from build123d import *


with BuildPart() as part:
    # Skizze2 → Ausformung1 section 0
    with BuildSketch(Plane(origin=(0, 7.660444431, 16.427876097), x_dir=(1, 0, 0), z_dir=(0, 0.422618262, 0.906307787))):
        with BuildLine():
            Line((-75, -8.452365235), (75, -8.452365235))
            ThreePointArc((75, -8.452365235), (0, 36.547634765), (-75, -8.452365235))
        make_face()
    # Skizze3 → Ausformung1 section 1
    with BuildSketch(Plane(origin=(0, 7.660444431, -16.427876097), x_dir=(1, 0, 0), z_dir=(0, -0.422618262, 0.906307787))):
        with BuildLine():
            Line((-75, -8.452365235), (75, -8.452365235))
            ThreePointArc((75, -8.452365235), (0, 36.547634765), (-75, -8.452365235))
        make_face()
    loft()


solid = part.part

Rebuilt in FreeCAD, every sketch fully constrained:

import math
import FreeCAD as App
import Part
import Sketcher
Q = App.Units.Quantity

doc = App.newDocument("Part")
body = doc.addObject("PartDesign::Body", "Body")

# Sketch on an angled plane
sketch1 = body.newObject("Sketcher::SketchObject", "Sketch")
sketch1.Placement = App.Placement(App.Vector(0, 7.660444, 16.427876), App.Rotation(App.Vector(1, 0, 0), App.Vector(0, 0.906307787, -0.422618262), App.Vector(0, 0.422618262, 0.906307787), "ZXY"))
sketch1.addGeometry(Part.LineSegment(App.Vector(-75, -8, 0), App.Vector(75, -8, 0)), False)
sketch1.addGeometry(Part.ArcOfCircle(Part.Circle(App.Vector(0, -48, 0), App.Vector(0, 0, 1), 85), math.radians(28), math.radians(152)), False)
sketch1.addConstraint(Sketcher.Constraint("Coincident", 0, 1, 1, 2))
sketch1.addConstraint(Sketcher.Constraint("Coincident", 1, 1, 0, 2))
sketch1.addConstraint(Sketcher.Constraint("Horizontal", 0))
sketch1.addConstraint(Sketcher.Constraint("PointOnObject", 1, 3, -2))
sketch1.addConstraint(Sketcher.Constraint("Radius", 1, Q("85 mm")))
sketch1.addConstraint(Sketcher.Constraint("DistanceX", 0, 1, 0, 2, Q("150 mm")))
sketch1.addConstraint(Sketcher.Constraint("DistanceY", 1, 3, -1, 1, Q("48.452365 mm")))

# Sketch on an angled plane
sketch2 = body.newObject("Sketcher::SketchObject", "Sketch001")
sketch2.Placement = App.Placement(App.Vector(0, 7.660444, -16.427876), App.Rotation(App.Vector(1, 0, 0), App.Vector(0, 0.906307787, 0.422618262), App.Vector(0, -0.422618262, 0.906307787), "ZXY"))
sketch2.addGeometry(Part.LineSegment(App.Vector(-75, -8, 0), App.Vector(75, -8, 0)), False)
sketch2.addGeometry(Part.ArcOfCircle(Part.Circle(App.Vector(0, -48, 0), App.Vector(0, 0, 1), 85), math.radians(28), math.radians(152)), False)
sketch2.addConstraint(Sketcher.Constraint("Coincident", 0, 1, 1, 2))
sketch2.addConstraint(Sketcher.Constraint("Coincident", 1, 1, 0, 2))
sketch2.addConstraint(Sketcher.Constraint("Horizontal", 0))
sketch2.addConstraint(Sketcher.Constraint("PointOnObject", 1, 3, -2))
sketch2.addConstraint(Sketcher.Constraint("Radius", 1, Q("85 mm")))
sketch2.addConstraint(Sketcher.Constraint("DistanceX", 0, 1, 0, 2, Q("150 mm")))
sketch2.addConstraint(Sketcher.Constraint("DistanceY", 1, 3, -1, 1, Q("48.452365 mm")))

additiveloft = body.newObject("PartDesign::AdditiveLoft", "AdditiveLoft")
additiveloft.Profile = sketch1
additiveloft.Sections = [sketch2]

doc.recompute()
